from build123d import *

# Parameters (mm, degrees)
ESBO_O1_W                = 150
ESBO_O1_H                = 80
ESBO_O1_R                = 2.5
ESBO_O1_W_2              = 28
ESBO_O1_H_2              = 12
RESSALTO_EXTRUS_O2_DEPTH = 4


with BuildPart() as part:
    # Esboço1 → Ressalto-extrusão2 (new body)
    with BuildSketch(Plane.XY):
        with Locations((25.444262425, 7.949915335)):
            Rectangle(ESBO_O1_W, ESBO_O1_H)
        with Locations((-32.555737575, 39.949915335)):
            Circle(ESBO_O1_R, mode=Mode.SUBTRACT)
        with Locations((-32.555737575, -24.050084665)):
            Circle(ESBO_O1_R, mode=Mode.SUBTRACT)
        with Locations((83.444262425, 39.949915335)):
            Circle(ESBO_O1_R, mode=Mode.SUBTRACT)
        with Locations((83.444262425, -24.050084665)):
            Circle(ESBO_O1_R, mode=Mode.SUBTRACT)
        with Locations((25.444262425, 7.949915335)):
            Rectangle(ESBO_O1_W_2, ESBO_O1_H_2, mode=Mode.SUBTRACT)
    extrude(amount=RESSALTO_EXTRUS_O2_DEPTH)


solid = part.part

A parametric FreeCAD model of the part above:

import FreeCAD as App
import Part
import Sketcher
from FreeCAD import Vector


def add_polygon(sketch, points):
    """Adds a closed chain of lines whose ends are joined by coincident constraints."""
    first, n = sketch.GeometryCount, len(points)
    for a, b in zip(points, points[1:] + points[:1]):
        sketch.addGeometry(Part.LineSegment(App.Vector(*a, 0), App.Vector(*b, 0)), False)
    for i in range(n):
        sketch.addConstraint(Sketcher.Constraint("Coincident", first + i, 2, first + (i + 1) % n, 1))

doc = App.newDocument("Part")
params = doc.addObject("Spreadsheet::Sheet", "Params")
for row, (alias, value) in enumerate([
    ("sketch1_diameter", "5 mm"),
    ("sketch1_width", "150 mm"),
    ("sketch1_width2", "28 mm"),
    ("sketch1_height", "80 mm"),
    ("sketch1_height2", "12 mm"),
    ("pad1_length", "4 mm"),
], start=1):
    params.set(f"A{row}", alias)
    params.set(f"B{row}", "=" + value)
    params.setAlias(f"B{row}", alias)

body = doc.addObject("PartDesign::Body", "Body")

# Sketch on XY plane
sketch1 = doc.addObject("Sketcher::SketchObject", "Sketch")
body.addObject(sketch1)
sketch1.AttachmentSupport = (doc.XY_Plane, [""])
sketch1.MapMode = "FlatFace"
add_polygon(sketch1, [(-49.6, 47.9), (-49.6, -32.1), (100.4, -32.1), (100.4, 47.9)])  # lines 0-3
sketch1.addGeometry(Part.Circle(Vector(-32.6, -24.1, 0), Vector(0, 0, 1), 2.5), False)  # 4
sketch1.addGeometry(Part.Circle(Vector(83.4, -24.1, 0), Vector(0, 0, 1), 2.5), False)  # 5
sketch1.addGeometry(Part.Circle(Vector(-32.6, 39.9, 0), Vector(0, 0, 1), 2.5), False)  # 6
add_polygon(sketch1, [(39.4, 1.9), (11.4, 1.9), (11.4, 13.9), (39.4, 13.9)])  # lines 7-10
sketch1.addGeometry(Part.Circle(Vector(83.4, 39.9, 0), Vector(0, 0, 1), 2.5), False)  # 11
sketch1.addConstraint([
    Sketcher.Constraint("Vertical", 0),
    Sketcher.Constraint("Horizontal", 1),
    Sketcher.Constraint("Vertical", 2),
    Sketcher.Constraint("Horizontal", 3),
    Sketcher.Constraint("Horizontal", 7),
    Sketcher.Constraint("Vertical", 8),
    Sketcher.Constraint("Horizontal", 9),
    Sketcher.Constraint("Vertical", 10),
    Sketcher.Constraint("Equal", 4, 5),
    Sketcher.Constraint("Equal", 5, 6),
    Sketcher.Constraint("Equal", 6, 11),
    Sketcher.Constraint("Horizontal", 4, 3, 5, 3),
    Sketcher.Constraint("Horizontal", 6, 3, 11, 3),
    Sketcher.Constraint("Vertical", 4, 3, 6, 3),
    Sketcher.Constraint("Vertical", 5, 3, 11, 3),
    Sketcher.Constraint("Diameter", 4, 5.0),
    Sketcher.Constraint("DistanceX", 1, 1, 1, 2, 150.0),
    Sketcher.Constraint("DistanceX", 7, 2, 7, 1, 28.0),
    Sketcher.Constraint("DistanceY", 0, 2, 0, 1, 80.0),
    Sketcher.Constraint("DistanceY", 8, 1, 8, 2, 12.0),
    Sketcher.Constraint("DistanceX", 4, 3, 5, 3, 116.0),
    Sketcher.Constraint("DistanceY", 4, 3, 6, 3, 64.0),
    Sketcher.Constraint("DistanceX", 0, 2, 4, 3, 17.0),
    Sketcher.Constraint("DistanceY", 0, 2, 4, 3, 8.0),
    Sketcher.Constraint("DistanceX", 4, 3, 7, 2, 44.0),
    Sketcher.Constraint("DistanceY", 4, 3, 7, 2, 26.0),
    Sketcher.Constraint("DistanceX", 4, 3, -1, 1, 32.555738),
    Sketcher.Constraint("DistanceY", 4, 3, -1, 1, 24.050085),
])
sketch1.setExpression("Constraints[23]", "Params.sketch1_diameter")
sketch1.setExpression("Constraints[24]", "Params.sketch1_width")
sketch1.setExpression("Constraints[25]", "Params.sketch1_width2")
sketch1.setExpression("Constraints[26]", "Params.sketch1_height")
sketch1.setExpression("Constraints[27]", "Params.sketch1_height2")
pad1 = doc.addObject("PartDesign::Pad", "Pad")
body.addObject(pad1)
pad1.Profile = sketch1
pad1.setExpression("Length", "Params.pad1_length")

doc.recompute()
